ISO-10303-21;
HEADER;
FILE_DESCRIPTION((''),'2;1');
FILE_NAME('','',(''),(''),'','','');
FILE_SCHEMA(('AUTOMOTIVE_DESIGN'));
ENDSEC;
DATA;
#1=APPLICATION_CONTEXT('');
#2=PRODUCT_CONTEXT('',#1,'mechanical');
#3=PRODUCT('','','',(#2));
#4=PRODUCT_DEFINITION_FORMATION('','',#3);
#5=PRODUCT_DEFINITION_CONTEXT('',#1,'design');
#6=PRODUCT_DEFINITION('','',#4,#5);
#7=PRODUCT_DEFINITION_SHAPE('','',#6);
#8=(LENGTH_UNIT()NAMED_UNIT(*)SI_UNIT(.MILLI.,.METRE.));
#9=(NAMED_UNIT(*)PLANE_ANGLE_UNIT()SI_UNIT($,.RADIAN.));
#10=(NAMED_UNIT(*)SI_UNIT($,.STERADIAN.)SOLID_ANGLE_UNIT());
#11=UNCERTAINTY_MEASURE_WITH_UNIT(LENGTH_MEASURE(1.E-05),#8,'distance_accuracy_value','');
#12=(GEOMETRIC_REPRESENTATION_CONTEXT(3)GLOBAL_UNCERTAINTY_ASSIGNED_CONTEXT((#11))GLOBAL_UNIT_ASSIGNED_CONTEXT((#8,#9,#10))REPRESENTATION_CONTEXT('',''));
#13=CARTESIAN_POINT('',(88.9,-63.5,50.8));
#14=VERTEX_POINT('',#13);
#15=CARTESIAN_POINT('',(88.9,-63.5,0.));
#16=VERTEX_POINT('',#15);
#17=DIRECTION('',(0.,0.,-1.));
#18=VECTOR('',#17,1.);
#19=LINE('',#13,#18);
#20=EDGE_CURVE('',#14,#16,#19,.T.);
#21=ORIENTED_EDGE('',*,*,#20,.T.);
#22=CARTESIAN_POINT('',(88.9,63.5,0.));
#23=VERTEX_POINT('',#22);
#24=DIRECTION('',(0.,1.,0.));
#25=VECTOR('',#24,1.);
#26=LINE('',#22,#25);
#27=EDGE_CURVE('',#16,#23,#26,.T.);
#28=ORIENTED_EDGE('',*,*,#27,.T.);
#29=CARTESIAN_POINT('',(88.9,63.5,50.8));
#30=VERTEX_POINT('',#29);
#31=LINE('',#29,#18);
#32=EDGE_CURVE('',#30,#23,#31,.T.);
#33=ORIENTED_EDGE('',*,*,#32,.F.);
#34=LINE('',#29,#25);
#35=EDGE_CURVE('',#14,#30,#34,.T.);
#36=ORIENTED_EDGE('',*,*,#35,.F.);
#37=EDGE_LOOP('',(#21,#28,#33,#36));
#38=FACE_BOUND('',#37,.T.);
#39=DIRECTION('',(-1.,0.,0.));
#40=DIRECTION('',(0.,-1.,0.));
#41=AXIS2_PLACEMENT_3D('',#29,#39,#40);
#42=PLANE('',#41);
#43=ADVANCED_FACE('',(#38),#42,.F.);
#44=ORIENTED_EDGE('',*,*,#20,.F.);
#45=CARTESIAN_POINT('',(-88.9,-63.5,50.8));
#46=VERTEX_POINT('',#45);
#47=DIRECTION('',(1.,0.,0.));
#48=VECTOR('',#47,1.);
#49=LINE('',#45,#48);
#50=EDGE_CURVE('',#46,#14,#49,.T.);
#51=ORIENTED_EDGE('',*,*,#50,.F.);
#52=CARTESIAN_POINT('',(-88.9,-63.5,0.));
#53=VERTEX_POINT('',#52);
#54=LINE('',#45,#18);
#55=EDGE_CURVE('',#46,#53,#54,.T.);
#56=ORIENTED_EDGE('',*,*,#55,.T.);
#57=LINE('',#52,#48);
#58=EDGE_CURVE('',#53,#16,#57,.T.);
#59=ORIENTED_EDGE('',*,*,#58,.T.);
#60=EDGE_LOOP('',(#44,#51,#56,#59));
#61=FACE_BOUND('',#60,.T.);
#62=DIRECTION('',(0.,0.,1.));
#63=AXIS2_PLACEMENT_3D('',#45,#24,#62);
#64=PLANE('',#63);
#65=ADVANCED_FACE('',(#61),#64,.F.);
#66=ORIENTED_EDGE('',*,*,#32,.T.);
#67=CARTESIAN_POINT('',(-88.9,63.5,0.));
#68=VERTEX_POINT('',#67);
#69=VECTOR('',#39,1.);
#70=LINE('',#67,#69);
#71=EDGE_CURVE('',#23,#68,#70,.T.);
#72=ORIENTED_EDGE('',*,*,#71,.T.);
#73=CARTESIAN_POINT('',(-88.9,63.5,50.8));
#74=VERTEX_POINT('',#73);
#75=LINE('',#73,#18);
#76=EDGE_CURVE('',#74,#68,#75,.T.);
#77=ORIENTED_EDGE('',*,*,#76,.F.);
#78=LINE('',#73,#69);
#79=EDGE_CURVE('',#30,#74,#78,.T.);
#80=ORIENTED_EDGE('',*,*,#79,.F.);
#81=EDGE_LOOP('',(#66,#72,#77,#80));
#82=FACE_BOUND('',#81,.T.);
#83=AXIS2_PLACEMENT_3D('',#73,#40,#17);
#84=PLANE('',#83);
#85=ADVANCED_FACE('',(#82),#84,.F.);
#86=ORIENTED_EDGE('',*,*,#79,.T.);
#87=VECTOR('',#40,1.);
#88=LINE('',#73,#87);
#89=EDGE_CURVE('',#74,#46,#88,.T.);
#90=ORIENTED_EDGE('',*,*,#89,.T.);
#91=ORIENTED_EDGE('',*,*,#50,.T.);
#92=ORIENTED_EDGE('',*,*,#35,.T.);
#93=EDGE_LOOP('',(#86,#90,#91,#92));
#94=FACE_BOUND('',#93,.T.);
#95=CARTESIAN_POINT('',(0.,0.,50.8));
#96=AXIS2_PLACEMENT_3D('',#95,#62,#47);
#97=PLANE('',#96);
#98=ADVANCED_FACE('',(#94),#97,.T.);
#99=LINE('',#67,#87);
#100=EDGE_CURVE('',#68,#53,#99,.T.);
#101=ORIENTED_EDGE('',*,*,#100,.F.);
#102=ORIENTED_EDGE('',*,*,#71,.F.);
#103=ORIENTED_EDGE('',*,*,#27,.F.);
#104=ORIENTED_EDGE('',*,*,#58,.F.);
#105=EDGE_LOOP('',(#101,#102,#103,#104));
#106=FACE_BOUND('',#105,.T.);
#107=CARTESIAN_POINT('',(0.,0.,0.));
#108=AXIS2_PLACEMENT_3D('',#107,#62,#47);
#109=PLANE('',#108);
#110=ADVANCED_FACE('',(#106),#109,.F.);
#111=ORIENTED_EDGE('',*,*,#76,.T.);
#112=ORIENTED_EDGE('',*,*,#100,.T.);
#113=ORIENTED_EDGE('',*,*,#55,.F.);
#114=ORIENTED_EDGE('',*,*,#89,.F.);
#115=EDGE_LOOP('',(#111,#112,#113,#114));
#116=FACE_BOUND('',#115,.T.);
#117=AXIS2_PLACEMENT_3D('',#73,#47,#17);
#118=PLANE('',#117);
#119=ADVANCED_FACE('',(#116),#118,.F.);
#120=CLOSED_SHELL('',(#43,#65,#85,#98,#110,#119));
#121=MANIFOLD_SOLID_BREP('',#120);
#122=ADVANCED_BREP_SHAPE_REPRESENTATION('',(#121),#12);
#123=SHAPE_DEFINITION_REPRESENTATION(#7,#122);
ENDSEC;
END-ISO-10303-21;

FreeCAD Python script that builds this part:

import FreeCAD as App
import Part
import Sketcher

V = App.Vector
Q = App.Units.Quantity


def add_polygon(sketch, points):
    """Adds a closed chain of lines whose ends are joined by coincident constraints."""
    first, n = sketch.GeometryCount, len(points)
    for a, b in zip(points, points[1:] + points[:1]):
        sketch.addGeometry(Part.LineSegment(App.Vector(*a, 0), App.Vector(*b, 0)), False)
    for i in range(n):
        sketch.addConstraint(Sketcher.Constraint("Coincident", first + i, 2, first + (i + 1) % n, 1))

doc = App.newDocument("Part")
body = doc.addObject("PartDesign::Body", "Body")

sketch1 = body.newObject("Sketcher::SketchObject", "Sketch")
sketch1.AttachmentSupport = (doc.getObject("XY_Plane"), [""])
sketch1.MapMode = "FlatFace"
add_polygon(sketch1, [(-89, 64), (-89, -64), (89, -64), (89, 64)])
sketch1.addConstraint(Sketcher.Constraint("Vertical", 0))
sketch1.addConstraint(Sketcher.Constraint("Horizontal", 1))
sketch1.addConstraint(Sketcher.Constraint("Vertical", 2))
sketch1.addConstraint(Sketcher.Constraint("Horizontal", 3))
sketch1.addConstraint(Sketcher.Constraint("Symmetric", 0, 2, 2, 2, -1, 1))
sketch1.addConstraint(Sketcher.Constraint("DistanceX", 1, 1, 1, 2, Q("7 in")))
sketch1.addConstraint(Sketcher.Constraint("DistanceY", 0, 2, 0, 1, Q("5 in")))
pad1 = body.newObject("PartDesign::Pad", "Pad")
pad1.Profile = sketch1
pad1.Length = Q("2 in")

doc.recompute()
